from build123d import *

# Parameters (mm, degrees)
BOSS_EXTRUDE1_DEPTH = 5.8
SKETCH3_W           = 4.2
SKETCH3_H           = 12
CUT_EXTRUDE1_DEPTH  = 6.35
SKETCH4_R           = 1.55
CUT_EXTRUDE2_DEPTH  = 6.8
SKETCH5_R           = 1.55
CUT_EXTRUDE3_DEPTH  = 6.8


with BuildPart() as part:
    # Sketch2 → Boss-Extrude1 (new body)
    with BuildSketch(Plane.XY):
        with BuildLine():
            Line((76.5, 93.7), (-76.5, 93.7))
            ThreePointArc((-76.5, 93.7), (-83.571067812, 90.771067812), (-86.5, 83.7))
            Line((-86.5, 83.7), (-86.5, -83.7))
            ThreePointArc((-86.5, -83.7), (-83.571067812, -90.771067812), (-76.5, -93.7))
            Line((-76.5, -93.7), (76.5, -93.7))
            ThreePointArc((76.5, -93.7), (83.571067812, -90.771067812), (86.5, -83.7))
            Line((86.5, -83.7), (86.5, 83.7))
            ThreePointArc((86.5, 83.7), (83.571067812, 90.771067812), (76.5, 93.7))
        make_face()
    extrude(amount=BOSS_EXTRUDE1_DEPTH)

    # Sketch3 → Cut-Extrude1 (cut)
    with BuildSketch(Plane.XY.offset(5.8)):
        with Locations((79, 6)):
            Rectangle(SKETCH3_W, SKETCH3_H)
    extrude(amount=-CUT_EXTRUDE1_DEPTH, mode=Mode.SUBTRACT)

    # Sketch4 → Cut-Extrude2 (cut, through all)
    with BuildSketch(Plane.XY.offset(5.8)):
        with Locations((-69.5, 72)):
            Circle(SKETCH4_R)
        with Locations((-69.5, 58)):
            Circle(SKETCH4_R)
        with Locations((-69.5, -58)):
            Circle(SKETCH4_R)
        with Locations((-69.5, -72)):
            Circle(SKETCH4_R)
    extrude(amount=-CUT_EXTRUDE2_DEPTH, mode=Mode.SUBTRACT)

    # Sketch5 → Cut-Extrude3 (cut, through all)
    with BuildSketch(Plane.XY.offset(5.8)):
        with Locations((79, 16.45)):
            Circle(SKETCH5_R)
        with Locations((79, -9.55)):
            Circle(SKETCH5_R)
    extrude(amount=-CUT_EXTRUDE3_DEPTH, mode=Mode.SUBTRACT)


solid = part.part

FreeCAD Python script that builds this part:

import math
import FreeCAD as App
import Part
import Sketcher
from FreeCAD import Vector

doc = App.newDocument("Part")
params = doc.addObject("Spreadsheet::Sheet", "Params")
for row, (alias, value) in enumerate([
    ("sketch1_radius", "10 mm"),
    ("sketch1_width", "153 mm"),
    ("sketch1_height", "167.4 mm"),
    ("pad1_length", "5.8 mm"),
    ("sketch2_height", "12 mm"),
    ("sketch2_width", "4.2 mm"),
    ("pocket1_length", "6.35 mm"),
    ("sketch3_diameter", "3.1 mm"),
    ("sketch4_diameter", "3.1 mm"),
], start=1):
    params.set(f"A{row}", alias)
    params.set(f"B{row}", "=" + value)
    params.setAlias(f"B{row}", alias)

body = doc.addObject("PartDesign::Body", "Body")

sketch1 = doc.addObject("Sketcher::SketchObject", "Sketch")
body.addObject(sketch1)
sketch1.AttachmentSupport = (doc.XY_Plane, [""])
sketch1.MapMode = "FlatFace"
sketch1.addGeometry([
    Part.LineSegment(Vector(76.5, 93.7, 0), Vector(-76.5, 93.7, 0)),
    Part.ArcOfCircle(Part.Circle(Vector(-76.5, 83.7, 0), Vector(0, 0, 1), 10), math.radians(90), math.radians(180)),
    Part.LineSegment(Vector(-86.5, 83.7, 0), Vector(-86.5, -83.7, 0)),
    Part.ArcOfCircle(Part.Circle(Vector(-76.5, -83.7, 0), Vector(0, 0, 1), 10), math.radians(180), math.radians(270)),
    Part.LineSegment(Vector(-76.5, -93.7, 0), Vector(76.5, -93.7, 0)),
    Part.ArcOfCircle(Part.Circle(Vector(76.5, -83.7, 0), Vector(0, 0, 1), 10), math.radians(-90), math.radians(0)),
    Part.LineSegment(Vector(86.5, -83.7, 0), Vector(86.5, 83.7, 0)),
    Part.ArcOfCircle(Part.Circle(Vector(76.5, 83.7, 0), Vector(0, 0, 1), 10), math.radians(0), math.radians(90)),
], False)
sketch1.addConstraint([
    Sketcher.Constraint("Tangent", 0, 2, 1, 1),
    Sketcher.Constraint("Tangent", 1, 2, 2, 1),
    Sketcher.Constraint("Tangent", 2, 2, 3, 1),
    Sketcher.Constraint("Tangent", 3, 2, 4, 1),
    Sketcher.Constraint("Tangent", 4, 2, 5, 1),
    Sketcher.Constraint("Tangent", 5, 2, 6, 1),
    Sketcher.Constraint("Tangent", 6, 2, 7, 1),
    Sketcher.Constraint("Tangent", 7, 2, 0, 1),
    Sketcher.Constraint("Horizontal", 0),
    Sketcher.Constraint("Vertical", 2),
    Sketcher.Constraint("Horizontal", 4),
    Sketcher.Constraint("Vertical", 6),
    Sketcher.Constraint("Equal", 1, 3),
    Sketcher.Constraint("Equal", 3, 5),
    Sketcher.Constraint("Equal", 5, 7),
    Sketcher.Constraint("Symmetric", 1, 3, 5, 3, -1, 1),
    Sketcher.Constraint("Radius", 1, 10.0),
    Sketcher.Constraint("DistanceX", 0, 2, 0, 1, 153.0),
    Sketcher.Constraint("DistanceY", 2, 2, 2, 1, 167.4),
])
sketch1.setExpression("Constraints[16]", "Params.sketch1_radius")
sketch1.setExpression("Constraints[17]", "Params.sketch1_width")
sketch1.setExpression("Constraints[18]", "Params.sketch1_height")
pad1 = doc.addObject("PartDesign::Pad", "Pad")
body.addObject(pad1)
pad1.Profile = sketch1
pad1.setExpression("Length", "Params.pad1_length")

sketch2 = doc.addObject("Sketcher::SketchObject", "Sketch001")
body.addObject(sketch2)
sketch2.AttachmentSupport = (doc.XY_Plane, [""])
sketch2.MapMode = "FlatFace"
sketch2.AttachmentOffset = App.Placement(Vector(0, 0, 5.8), App.Rotation())
sketch2.addGeometry([
    Part.LineSegment(Vector(76.9, 12, 0), Vector(76.9, 0, 0)),
    Part.LineSegment(Vector(76.9, 0, 0), Vector(81.1, 0, 0)),
    Part.LineSegment(Vector(81.1, 0, 0), Vector(81.1, 12, 0)),
    Part.LineSegment(Vector(81.1, 12, 0), Vector(76.9, 12, 0)),
], False)
sketch2.addConstraint([
    Sketcher.Constraint("Coincident", 0, 2, 1, 1),
    Sketcher.Constraint("Coincident", 1, 2, 2, 1),
    Sketcher.Constraint("Coincident", 2, 2, 3, 1),
    Sketcher.Constraint("Coincident", 3, 2, 0, 1),
    Sketcher.Constraint("Vertical", 0),
    Sketcher.Constraint("Horizontal", 1),
    Sketcher.Constraint("Vertical", 2),
    Sketcher.Constraint("Horizontal", 3),
    Sketcher.Constraint("PointOnObject", 0, 2, -1),
    Sketcher.Constraint("DistanceY", 0, 2, 0, 1, 12.0),
    Sketcher.Constraint("DistanceX", 1, 1, 1, 2, 4.2),
    Sketcher.Constraint("DistanceX", -1, 1, 0, 2, 76.9),
])
sketch2.setExpression("Constraints[9]", "Params.sketch2_height")
sketch2.setExpression("Constraints[10]", "Params.sketch2_width")
pocket1 = doc.addObject("PartDesign::Pocket", "Pocket")
body.addObject(pocket1)
pocket1.Profile = sketch2
pocket1.setExpression("Length", "Params.pocket1_length")

sketch3 = doc.addObject("Sketcher::SketchObject", "Sketch002")
body.addObject(sketch3)
sketch3.AttachmentSupport = (doc.XY_Plane, [""])
sketch3.MapMode = "FlatFace"
sketch3.AttachmentOffset = App.Placement(Vector(0, 0, 5.8), App.Rotation())
sketch3.addGeometry([
    Part.Circle(Vector(-69.5, 72, 0), Vector(0, 0, 1), 1.55),
    Part.Circle(Vector(-69.5, 58, 0), Vector(0, 0, 1), 1.55),
    Part.Circle(Vector(-69.5, -58, 0), Vector(0, 0, 1), 1.55),
    Part.Circle(Vector(-69.5, -72, 0), Vector(0, 0, 1), 1.55),
], False)
sketch3.addConstraint([
    Sketcher.Constraint("Equal", 0, 1),
    Sketcher.Constraint("Equal", 1, 2),
    Sketcher.Constraint("Equal", 2, 3),
    Sketcher.Constraint("Symmetric", 1, 3, 2, 3, -1),
    Sketcher.Constraint("Symmetric", 0, 3, 3, 3, -1),
    Sketcher.Constraint("Vertical", 0, 3, 1, 3),
    Sketcher.Constraint("Diameter", 0, 3.1),
    Sketcher.Constraint("DistanceY", -1, 1, 0, 3, 72.0),
    Sketcher.Constraint("DistanceY", -1, 1, 1, 3, 58.0),
    Sketcher.Constraint("DistanceX", 0, 3, -1, 1, 69.5),
])
sketch3.setExpression("Constraints[6]", "Params.sketch3_diameter")
pocket2 = doc.addObject("PartDesign::Pocket", "Pocket001")
body.addObject(pocket2)
pocket2.Profile = sketch3
pocket2.Type = "ThroughAll"

sketch4 = doc.addObject("Sketcher::SketchObject", "Sketch003")
body.addObject(sketch4)
sketch4.AttachmentSupport = (doc.XY_Plane, [""])
sketch4.MapMode = "FlatFace"
sketch4.AttachmentOffset = App.Placement(Vector(0, 0, 5.8), App.Rotation())
sketch4.addGeometry([
    Part.Circle(Vector(79, 16.45, 0), Vector(0, 0, 1), 1.55),
    Part.Circle(Vector(79, -9.55, 0), Vector(0, 0, 1), 1.55),
], False)
sketch4.addConstraint([
    Sketcher.Constraint("Equal", 0, 1),
    Sketcher.Constraint("Vertical", 0, 3, 1, 3),
    Sketcher.Constraint("Diameter", 0, 3.1),
    Sketcher.Constraint("DistanceX", -1, 1, 0, 3, 79.0),
    Sketcher.Constraint("DistanceY", 1, 3, 0, 3, 26.0),
    Sketcher.Constraint("DistanceY", -1, 1, 0, 3, 16.45),
])
sketch4.setExpression("Constraints[2]", "Params.sketch4_diameter")
pocket3 = doc.addObject("PartDesign::Pocket", "Pocket002")
body.addObject(pocket3)
pocket3.Profile = sketch4
pocket3.Type = "ThroughAll"

doc.recompute()
